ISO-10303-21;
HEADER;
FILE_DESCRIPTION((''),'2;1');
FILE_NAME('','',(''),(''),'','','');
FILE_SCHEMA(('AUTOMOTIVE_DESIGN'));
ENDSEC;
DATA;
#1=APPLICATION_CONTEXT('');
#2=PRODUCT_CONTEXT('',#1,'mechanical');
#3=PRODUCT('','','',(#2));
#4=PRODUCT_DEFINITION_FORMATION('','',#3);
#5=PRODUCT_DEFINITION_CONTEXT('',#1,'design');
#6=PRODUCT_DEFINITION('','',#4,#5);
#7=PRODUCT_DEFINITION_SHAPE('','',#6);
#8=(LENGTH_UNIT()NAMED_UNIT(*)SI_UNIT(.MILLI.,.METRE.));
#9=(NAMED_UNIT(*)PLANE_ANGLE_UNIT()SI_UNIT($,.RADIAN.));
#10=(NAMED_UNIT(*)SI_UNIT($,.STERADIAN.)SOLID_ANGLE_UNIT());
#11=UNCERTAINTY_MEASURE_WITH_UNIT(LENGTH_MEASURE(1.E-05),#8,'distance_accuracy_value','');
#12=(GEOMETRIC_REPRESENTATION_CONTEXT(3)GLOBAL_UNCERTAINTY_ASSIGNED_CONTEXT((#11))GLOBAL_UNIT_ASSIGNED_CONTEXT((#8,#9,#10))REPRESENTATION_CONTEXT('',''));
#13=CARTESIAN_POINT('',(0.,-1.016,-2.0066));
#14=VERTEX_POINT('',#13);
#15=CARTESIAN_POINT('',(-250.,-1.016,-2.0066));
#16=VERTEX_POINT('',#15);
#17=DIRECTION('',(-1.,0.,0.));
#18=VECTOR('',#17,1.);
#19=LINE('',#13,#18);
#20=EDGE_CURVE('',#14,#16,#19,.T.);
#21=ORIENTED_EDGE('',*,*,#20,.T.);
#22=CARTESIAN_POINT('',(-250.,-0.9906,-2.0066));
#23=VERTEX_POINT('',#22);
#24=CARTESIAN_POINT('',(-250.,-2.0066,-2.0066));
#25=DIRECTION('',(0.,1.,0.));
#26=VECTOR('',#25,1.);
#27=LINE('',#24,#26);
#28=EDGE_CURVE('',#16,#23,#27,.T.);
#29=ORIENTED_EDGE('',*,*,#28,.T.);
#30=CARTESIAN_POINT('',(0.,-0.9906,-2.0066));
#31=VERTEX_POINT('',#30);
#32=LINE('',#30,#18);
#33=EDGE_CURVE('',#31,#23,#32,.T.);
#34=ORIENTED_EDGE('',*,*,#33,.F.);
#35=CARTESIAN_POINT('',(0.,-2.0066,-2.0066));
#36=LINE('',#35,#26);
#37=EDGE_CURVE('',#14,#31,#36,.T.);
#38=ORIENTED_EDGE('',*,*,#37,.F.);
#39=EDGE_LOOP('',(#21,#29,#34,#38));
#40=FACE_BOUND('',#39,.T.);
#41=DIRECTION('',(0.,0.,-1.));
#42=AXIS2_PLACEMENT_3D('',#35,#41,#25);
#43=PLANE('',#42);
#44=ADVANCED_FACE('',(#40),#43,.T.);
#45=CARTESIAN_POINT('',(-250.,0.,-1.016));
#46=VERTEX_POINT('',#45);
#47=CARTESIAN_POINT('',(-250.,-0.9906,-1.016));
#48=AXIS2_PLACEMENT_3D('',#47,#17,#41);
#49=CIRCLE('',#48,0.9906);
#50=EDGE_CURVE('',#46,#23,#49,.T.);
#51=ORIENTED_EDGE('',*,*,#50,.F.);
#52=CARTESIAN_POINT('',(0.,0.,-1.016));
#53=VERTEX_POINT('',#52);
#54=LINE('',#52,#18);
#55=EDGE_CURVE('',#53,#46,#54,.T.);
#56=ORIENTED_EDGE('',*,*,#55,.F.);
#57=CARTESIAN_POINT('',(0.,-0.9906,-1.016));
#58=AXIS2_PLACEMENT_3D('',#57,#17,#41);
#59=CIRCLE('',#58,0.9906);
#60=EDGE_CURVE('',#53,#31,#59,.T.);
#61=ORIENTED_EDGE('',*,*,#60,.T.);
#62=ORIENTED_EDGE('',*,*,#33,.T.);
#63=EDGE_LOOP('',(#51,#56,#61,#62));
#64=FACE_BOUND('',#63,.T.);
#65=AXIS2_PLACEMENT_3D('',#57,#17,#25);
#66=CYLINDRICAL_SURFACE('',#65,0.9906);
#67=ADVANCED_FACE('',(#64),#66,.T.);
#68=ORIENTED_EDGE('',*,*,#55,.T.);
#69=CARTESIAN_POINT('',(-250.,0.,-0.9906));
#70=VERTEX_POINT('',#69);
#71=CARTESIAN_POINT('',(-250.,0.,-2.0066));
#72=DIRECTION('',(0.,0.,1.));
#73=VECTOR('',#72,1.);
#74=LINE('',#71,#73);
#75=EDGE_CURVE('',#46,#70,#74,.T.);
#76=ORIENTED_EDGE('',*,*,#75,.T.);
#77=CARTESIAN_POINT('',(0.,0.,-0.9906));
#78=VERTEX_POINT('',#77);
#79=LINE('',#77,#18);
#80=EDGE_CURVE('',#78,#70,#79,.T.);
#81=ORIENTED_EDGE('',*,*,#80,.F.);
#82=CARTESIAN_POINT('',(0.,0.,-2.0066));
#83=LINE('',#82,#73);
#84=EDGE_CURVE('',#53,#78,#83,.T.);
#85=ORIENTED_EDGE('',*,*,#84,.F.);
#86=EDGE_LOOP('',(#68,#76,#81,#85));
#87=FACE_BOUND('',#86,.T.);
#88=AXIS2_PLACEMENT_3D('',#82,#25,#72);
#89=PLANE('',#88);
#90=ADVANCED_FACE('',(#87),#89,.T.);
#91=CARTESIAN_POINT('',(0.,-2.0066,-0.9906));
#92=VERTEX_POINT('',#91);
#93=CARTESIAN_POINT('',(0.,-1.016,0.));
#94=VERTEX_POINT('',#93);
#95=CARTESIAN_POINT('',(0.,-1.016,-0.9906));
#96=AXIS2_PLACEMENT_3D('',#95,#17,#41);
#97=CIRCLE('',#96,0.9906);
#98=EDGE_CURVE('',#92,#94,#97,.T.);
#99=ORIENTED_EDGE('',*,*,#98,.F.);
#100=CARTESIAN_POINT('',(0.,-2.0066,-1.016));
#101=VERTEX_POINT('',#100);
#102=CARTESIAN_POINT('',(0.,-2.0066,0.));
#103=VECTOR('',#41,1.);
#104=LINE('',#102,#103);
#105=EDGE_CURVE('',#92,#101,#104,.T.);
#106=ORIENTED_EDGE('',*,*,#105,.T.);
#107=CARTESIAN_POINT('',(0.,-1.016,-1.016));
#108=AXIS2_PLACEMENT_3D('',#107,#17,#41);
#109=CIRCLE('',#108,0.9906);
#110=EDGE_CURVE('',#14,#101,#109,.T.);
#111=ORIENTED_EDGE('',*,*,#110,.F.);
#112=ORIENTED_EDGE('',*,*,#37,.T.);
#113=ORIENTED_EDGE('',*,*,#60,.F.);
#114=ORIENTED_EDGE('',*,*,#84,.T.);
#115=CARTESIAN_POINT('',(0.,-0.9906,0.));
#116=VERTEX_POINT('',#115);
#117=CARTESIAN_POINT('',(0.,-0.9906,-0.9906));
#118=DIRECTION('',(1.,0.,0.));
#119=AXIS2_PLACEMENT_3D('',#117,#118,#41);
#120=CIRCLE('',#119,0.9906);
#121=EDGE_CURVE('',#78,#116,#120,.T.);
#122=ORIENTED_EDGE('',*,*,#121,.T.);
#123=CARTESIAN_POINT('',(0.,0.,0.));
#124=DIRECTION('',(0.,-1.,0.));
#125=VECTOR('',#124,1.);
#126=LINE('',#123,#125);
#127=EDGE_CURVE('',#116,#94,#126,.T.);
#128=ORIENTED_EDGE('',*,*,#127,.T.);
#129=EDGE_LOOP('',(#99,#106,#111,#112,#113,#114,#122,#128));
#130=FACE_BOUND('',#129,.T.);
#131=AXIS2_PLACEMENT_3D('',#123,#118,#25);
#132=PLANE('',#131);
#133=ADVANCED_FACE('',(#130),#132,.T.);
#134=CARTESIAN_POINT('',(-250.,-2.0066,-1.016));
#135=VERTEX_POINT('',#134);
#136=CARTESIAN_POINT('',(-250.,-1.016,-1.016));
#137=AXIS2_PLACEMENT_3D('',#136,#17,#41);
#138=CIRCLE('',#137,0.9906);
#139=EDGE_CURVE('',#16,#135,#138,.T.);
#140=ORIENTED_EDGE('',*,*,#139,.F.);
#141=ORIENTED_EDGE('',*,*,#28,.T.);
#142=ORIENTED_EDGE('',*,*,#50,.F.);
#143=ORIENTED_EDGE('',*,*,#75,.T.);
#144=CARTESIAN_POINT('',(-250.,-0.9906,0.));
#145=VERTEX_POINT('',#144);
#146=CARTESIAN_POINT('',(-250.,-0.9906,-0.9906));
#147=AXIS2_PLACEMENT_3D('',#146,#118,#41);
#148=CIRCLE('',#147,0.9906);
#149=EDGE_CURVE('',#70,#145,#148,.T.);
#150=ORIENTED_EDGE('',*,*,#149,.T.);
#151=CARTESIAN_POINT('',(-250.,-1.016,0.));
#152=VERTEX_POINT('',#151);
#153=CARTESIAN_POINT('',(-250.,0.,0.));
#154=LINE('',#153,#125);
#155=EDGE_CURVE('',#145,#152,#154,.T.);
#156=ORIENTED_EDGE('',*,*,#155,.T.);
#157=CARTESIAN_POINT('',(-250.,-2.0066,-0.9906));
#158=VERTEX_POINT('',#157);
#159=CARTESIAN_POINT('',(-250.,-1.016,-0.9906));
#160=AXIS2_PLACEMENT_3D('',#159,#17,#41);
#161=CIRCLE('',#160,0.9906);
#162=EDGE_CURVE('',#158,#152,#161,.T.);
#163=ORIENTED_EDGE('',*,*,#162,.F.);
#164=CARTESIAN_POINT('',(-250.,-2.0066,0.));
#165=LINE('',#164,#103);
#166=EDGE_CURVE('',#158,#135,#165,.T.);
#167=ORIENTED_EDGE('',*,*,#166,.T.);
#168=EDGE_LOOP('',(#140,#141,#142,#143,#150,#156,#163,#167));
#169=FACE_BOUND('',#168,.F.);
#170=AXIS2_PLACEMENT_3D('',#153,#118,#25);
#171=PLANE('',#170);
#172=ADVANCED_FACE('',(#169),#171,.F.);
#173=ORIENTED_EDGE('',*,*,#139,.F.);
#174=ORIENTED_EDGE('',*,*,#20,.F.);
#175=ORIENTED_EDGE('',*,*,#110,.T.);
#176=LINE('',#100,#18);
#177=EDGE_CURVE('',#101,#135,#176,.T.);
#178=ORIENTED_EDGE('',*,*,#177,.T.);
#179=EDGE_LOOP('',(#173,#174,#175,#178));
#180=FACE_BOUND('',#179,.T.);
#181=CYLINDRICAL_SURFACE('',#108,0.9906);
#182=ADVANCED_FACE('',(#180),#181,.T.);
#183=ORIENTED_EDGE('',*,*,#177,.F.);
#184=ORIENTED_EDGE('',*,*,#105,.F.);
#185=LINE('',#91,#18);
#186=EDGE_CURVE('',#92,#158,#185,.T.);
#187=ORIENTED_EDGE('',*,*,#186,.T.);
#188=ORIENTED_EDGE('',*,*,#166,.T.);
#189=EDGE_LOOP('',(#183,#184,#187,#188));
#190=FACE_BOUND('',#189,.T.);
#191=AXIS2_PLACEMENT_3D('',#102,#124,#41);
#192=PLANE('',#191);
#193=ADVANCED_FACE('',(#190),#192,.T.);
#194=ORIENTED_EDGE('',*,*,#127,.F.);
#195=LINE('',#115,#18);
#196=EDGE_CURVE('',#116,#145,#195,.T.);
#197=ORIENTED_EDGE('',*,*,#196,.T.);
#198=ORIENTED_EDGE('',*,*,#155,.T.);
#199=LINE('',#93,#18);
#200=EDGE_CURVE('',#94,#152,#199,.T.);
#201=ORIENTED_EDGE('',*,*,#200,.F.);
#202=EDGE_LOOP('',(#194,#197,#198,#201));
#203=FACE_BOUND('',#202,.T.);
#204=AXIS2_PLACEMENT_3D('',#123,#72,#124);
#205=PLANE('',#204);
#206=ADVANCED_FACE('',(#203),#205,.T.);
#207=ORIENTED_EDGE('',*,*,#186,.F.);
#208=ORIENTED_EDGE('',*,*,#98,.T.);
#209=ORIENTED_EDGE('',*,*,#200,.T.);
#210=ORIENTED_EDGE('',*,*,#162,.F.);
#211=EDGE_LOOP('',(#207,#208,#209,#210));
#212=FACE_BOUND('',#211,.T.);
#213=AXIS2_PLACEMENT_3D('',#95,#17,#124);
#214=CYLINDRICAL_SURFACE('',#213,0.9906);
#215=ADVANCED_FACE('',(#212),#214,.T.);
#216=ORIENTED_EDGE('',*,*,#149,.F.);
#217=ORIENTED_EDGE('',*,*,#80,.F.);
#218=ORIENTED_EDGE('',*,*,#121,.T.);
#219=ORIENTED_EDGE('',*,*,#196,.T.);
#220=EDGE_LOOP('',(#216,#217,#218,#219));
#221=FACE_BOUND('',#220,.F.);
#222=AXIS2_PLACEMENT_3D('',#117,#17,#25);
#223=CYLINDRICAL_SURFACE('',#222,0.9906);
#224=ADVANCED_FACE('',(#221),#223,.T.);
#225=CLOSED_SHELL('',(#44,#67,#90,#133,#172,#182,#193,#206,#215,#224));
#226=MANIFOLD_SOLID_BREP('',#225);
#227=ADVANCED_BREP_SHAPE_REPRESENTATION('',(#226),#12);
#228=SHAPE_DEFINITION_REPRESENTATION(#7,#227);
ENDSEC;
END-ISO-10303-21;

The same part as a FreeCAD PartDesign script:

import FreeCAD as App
import Part
import Sketcher
from FreeCAD import Vector
Q = App.Units.Quantity


def edges_at(feature, points):
    """Names of the edges that pass closest to the given points."""
    edges = feature.Shape.Edges
    near = lambda p: min(range(len(edges)), key=lambda i: edges[i].distToShape(Part.Vertex(*p))[0])
    return sorted({f"Edge{near(p) + 1}" for p in points})

doc = App.newDocument("Part")
params = doc.addObject("Spreadsheet::Sheet", "Params")
for row, (alias, value) in enumerate([
    ("sketch1_width", "0.079 in"),
    ("pad1_length", "250 mm"),
    ("fillet_radius", "0.039 in"),
], start=1):
    params.set(f"A{row}", alias)
    params.set(f"B{row}", "=" + value)
    params.setAlias(f"B{row}", alias)

body = doc.addObject("PartDesign::Body", "Body")

sketch1 = doc.addObject("Sketcher::SketchObject", "Sketch")
body.addObject(sketch1)
sketch1.AttachmentSupport = (doc.YZ_Plane, [""])
sketch1.MapMode = "FlatFace"
sketch1.addGeometry(Part.LineSegment(Vector(0, -2, 0), Vector(0, 0, 0)), False)
sketch1.addGeometry(Part.LineSegment(Vector(0, 0, 0), Vector(-2, 0, 0)), False)
sketch1.addGeometry(Part.LineSegment(Vector(-2, 0, 0), Vector(-2, -2, 0)), False)
sketch1.addGeometry(Part.LineSegment(Vector(-2, -2, 0), Vector(0, -2, 0)), False)
sketch1.addConstraint(Sketcher.Constraint("Coincident", 0, 2, 1, 1))
sketch1.addConstraint(Sketcher.Constraint("Coincident", 1, 2, 2, 1))
sketch1.addConstraint(Sketcher.Constraint("Coincident", 2, 2, 3, 1))
sketch1.addConstraint(Sketcher.Constraint("Coincident", 3, 2, 0, 1))
sketch1.addConstraint(Sketcher.Constraint("Vertical", 0))
sketch1.addConstraint(Sketcher.Constraint("Horizontal", 1))
sketch1.addConstraint(Sketcher.Constraint("Vertical", 2))
sketch1.addConstraint(Sketcher.Constraint("Horizontal", 3))
sketch1.addConstraint(Sketcher.Constraint("Coincident", 0, 2, -1, 1))
sketch1.addConstraint(Sketcher.Constraint("Equal", 3, 0))
sketch1.addConstraint(Sketcher.Constraint("DistanceX", 1, 2, 1, 1, Q("0.079 in")))
sketch1.setExpression("Constraints[10]", "Params.sketch1_width")
pad1 = doc.addObject("PartDesign::Pad", "Pad")
body.addObject(pad1)
pad1.Profile = sketch1
pad1.setExpression("Length", "Params.pad1_length")
pad1.Reversed = True
doc.recompute()

fillet = doc.addObject("PartDesign::Fillet", "Fillet")
body.addObject(fillet)
fillet.Base = (pad1, edges_at(pad1, [
    (-125, 0, 0),
    (-125, -2.007, 0),
    (-125, 0, -2.007),
    (-125, -2.007, -2.007),
]))
fillet.setExpression("Radius", "Params.fillet_radius")

doc.recompute()
